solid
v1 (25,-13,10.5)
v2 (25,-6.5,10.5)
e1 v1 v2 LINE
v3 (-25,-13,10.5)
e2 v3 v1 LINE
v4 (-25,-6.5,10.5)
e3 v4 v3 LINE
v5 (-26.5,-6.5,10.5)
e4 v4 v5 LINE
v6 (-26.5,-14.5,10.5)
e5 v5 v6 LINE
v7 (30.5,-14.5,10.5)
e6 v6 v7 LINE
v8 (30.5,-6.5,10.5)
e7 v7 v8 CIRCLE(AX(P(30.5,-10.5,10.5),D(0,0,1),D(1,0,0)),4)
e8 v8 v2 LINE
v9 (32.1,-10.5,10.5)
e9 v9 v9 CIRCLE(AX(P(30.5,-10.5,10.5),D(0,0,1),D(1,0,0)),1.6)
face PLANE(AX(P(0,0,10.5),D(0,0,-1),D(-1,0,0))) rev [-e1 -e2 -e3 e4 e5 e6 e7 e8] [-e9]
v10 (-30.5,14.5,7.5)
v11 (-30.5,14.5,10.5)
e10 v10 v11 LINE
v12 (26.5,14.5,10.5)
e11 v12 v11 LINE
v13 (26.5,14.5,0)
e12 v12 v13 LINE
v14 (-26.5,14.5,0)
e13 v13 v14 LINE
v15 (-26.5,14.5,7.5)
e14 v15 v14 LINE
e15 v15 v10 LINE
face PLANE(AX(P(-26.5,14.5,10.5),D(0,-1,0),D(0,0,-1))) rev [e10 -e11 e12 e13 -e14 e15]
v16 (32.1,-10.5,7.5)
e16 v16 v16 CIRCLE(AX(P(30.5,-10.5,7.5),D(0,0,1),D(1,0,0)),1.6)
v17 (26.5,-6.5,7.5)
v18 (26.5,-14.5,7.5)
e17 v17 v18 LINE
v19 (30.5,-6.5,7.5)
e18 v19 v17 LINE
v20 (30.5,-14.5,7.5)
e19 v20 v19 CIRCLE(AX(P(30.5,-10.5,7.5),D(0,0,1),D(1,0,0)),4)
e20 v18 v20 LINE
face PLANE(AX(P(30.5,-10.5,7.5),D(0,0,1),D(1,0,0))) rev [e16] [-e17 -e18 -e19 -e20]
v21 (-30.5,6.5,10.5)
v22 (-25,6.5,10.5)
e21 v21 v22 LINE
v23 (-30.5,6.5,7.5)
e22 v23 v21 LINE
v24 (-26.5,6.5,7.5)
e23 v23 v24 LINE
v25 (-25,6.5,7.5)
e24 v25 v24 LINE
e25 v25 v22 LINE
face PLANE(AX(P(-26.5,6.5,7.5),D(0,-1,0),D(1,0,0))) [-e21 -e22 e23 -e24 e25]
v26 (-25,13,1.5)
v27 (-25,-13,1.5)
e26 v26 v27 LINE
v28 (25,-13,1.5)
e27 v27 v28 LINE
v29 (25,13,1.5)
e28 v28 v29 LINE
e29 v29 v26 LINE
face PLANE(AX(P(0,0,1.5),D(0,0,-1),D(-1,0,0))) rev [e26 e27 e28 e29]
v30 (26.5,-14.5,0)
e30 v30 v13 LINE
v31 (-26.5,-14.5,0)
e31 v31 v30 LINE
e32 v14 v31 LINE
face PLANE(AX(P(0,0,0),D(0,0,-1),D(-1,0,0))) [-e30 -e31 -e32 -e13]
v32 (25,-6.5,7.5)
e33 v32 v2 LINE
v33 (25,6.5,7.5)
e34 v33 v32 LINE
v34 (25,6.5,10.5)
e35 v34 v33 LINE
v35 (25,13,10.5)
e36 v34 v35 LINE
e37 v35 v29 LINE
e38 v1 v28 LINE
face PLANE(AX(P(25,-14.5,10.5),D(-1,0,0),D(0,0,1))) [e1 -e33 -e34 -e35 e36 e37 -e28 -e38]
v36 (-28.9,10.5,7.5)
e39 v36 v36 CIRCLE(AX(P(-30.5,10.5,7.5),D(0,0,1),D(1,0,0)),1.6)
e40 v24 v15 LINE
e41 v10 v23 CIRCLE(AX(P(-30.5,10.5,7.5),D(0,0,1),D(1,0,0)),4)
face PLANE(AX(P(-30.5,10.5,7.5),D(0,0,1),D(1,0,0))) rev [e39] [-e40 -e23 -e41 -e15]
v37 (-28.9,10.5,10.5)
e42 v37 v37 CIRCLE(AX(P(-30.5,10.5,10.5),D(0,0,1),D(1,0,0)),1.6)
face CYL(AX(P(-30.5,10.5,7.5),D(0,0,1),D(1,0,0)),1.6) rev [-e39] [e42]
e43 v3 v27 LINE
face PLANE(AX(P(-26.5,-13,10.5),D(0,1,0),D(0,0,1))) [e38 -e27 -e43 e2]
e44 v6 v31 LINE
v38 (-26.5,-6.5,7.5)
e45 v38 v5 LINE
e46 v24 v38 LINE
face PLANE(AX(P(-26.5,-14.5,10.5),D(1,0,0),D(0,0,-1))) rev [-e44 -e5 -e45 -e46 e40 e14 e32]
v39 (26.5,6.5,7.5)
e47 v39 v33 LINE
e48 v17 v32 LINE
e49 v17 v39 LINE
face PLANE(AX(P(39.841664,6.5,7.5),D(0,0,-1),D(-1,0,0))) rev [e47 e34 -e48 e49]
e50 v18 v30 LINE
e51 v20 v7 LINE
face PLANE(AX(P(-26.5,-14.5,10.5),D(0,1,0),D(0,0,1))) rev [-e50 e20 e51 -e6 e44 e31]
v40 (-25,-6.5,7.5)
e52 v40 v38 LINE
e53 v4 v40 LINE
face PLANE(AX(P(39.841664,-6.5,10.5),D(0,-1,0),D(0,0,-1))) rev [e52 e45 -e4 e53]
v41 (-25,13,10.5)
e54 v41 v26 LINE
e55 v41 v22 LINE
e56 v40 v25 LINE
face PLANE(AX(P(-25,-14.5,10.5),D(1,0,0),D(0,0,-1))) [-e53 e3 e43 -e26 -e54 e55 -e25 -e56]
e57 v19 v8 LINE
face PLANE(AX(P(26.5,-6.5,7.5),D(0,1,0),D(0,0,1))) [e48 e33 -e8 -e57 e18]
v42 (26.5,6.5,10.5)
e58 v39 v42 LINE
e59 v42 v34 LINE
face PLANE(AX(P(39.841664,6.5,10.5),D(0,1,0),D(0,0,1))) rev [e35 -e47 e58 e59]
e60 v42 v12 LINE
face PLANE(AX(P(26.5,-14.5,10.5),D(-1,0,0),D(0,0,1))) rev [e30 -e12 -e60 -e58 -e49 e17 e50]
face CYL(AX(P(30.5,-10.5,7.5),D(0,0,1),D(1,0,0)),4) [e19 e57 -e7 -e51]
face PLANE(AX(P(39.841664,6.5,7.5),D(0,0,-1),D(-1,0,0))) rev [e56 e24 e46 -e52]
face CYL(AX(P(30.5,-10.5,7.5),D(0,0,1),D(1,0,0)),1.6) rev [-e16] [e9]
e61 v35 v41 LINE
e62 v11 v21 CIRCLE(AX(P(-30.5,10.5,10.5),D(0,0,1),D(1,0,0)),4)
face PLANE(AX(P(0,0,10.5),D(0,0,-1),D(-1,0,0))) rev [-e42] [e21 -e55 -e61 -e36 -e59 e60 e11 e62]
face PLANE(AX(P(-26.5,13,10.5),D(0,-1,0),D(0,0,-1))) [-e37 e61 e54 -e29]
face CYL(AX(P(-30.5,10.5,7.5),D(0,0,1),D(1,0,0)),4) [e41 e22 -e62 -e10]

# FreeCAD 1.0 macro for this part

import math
import FreeCAD as App
import Part
import Sketcher


def faces_at(feature, points):
    """Names of the faces that lie closest to the given points."""
    faces = feature.Shape.Faces
    near = lambda p: min(range(len(faces)), key=lambda i: faces[i].distToShape(Part.Vertex(*p))[0])
    return sorted({f"Face{near(p) + 1}" for p in points})


def add_polygon(sketch, points):
    """Adds a closed chain of lines whose ends are joined by coincident constraints."""
    first, n = sketch.GeometryCount, len(points)
    for a, b in zip(points, points[1:] + points[:1]):
        sketch.addGeometry(Part.LineSegment(App.Vector(*a, 0), App.Vector(*b, 0)), False)
    for i in range(n):
        sketch.addConstraint(Sketcher.Constraint("Coincident", first + i, 2, first + (i + 1) % n, 1))

doc = App.newDocument("Part")
body = doc.addObject("PartDesign::Body", "Body")

# Sketch on XY plane
sketch1 = body.newObject("Sketcher::SketchObject", "Sketch")
sketch1.AttachmentSupport = (doc.getObject("XY_Plane"), [""])
sketch1.MapMode = "FlatFace"
add_polygon(sketch1, [(-26, 14), (-26, -14), (26, -14), (26, 14)])  # lines 0-3
sketch1.addConstraint([
    Sketcher.Constraint("Vertical", 0),
    Sketcher.Constraint("Horizontal", 1),
    Sketcher.Constraint("Vertical", 2),
    Sketcher.Constraint("Horizontal", 3),
    Sketcher.Constraint("Symmetric", 0, 2, 2, 2, -1, 1),
    Sketcher.Constraint("DistanceX", 1, 1, 1, 2, 53.0),
    Sketcher.Constraint("DistanceY", 0, 2, 0, 1, 29.0),
])
pad1 = body.newObject("PartDesign::Pad", "Pad")
pad1.Profile = sketch1
pad1.Length = 10.5
doc.recompute()

thickness = body.newObject("PartDesign::Thickness", "Thickness")
thickness.Base = (pad1, faces_at(pad1, [(0, 0, 10.5)]))
thickness.Value = 1.5
thickness.Reversed = True
thickness.Join = "Intersection"

# Sketch on XY plane
sketch2 = body.newObject("Sketcher::SketchObject", "Sketch001")
sketch2.AttachmentSupport = (doc.getObject("XY_Plane"), [""])
sketch2.MapMode = "FlatFace"
sketch2.AttachmentOffset = App.Placement(App.Vector(0, 0, 10.5), App.Rotation())
sketch2.addGeometry([
    Part.LineSegment(App.Vector(-30.5, 6.5, 0), App.Vector(-26.5, 6.5, 0)),  # 0
    Part.LineSegment(App.Vector(-26.5, 6.5, 0), App.Vector(-26.5, 14.5, 0)),  # 1
    Part.LineSegment(App.Vector(-26.5, 14.5, 0), App.Vector(-30.5, 14.5, 0)),  # 2
    Part.ArcOfCircle(Part.Circle(App.Vector(-30.5, 10.5, 0), App.Vector(0, 0, 1), 4), math.radians(90), math.radians(270)),  # 3
    Part.Circle(App.Vector(-30.5, 10.5, 0), App.Vector(0, 0, 1), 1.6),  # 4
    Part.LineSegment(App.Vector(30.5, -6.5, 0), App.Vector(26.5, -6.5, 0)),  # 5
    Part.LineSegment(App.Vector(26.5, -6.5, 0), App.Vector(26.5, -14.5, 0)),  # 6
    Part.LineSegment(App.Vector(26.5, -14.5, 0), App.Vector(30.5, -14.5, 0)),  # 7
    Part.ArcOfCircle(Part.Circle(App.Vector(30.5, -10.5, 0), App.Vector(0, 0, 1), 4), math.radians(-90), math.radians(90)),  # 8
    Part.Circle(App.Vector(30.5, -10.5, 0), App.Vector(0, 0, 1), 1.6),  # 9
], False)
sketch2.addConstraint([
    Sketcher.Constraint("Coincident", 0, 2, 1, 1),
    Sketcher.Constraint("Coincident", 1, 2, 2, 1),
    Sketcher.Constraint("Tangent", 2, 2, 3, 1),
    Sketcher.Constraint("Tangent", 3, 2, 0, 1),
    Sketcher.Constraint("Coincident", 5, 2, 6, 1),
    Sketcher.Constraint("Coincident", 6, 2, 7, 1),
    Sketcher.Constraint("Tangent", 7, 2, 8, 1),
    Sketcher.Constraint("Tangent", 8, 2, 5, 1),
    Sketcher.Constraint("Horizontal", 0),
    Sketcher.Constraint("Vertical", 1),
    Sketcher.Constraint("Horizontal", 2),
    Sketcher.Constraint("Horizontal", 5),
    Sketcher.Constraint("Vertical", 6),
    Sketcher.Constraint("Horizontal", 7),
    Sketcher.Constraint("Coincident", 4, 3, 3, 3),
    Sketcher.Constraint("Coincident", 9, 3, 8, 3),
    Sketcher.Constraint("Equal", 3, 8),
    Sketcher.Constraint("Equal", 4, 9),
    Sketcher.Constraint("Symmetric", 3, 3, 8, 3, -1, 1),
    Sketcher.Constraint("Equal", 2, 5),
    Sketcher.Constraint("Radius", 3, 4.0),
    Sketcher.Constraint("Diameter", 4, 3.2),
    Sketcher.Constraint("DistanceX", 0, 1, 0, 2, 4.0),
    Sketcher.Constraint("DistanceX", 3, 3, 8, 3, 61.0),
    Sketcher.Constraint("DistanceY", 8, 3, 3, 3, 21.0),
])
pad2 = body.newObject("PartDesign::Pad", "Pad001")
pad2.Profile = sketch2
pad2.Length = 3
pad2.Reversed = True

# Sketch on YZ plane
sketch3 = body.newObject("Sketcher::SketchObject", "Sketch002")
sketch3.AttachmentSupport = (doc.getObject("YZ_Plane"), [""])
sketch3.MapMode = "FlatFace"
sketch3.AttachmentOffset = App.Placement(App.Vector(0, 0, -26.5), App.Rotation())
add_polygon(sketch3, [(6.5, 7.5), (-6.5, 7.5), (-6.5, 10.5), (6.5, 10.5)])  # lines 0-3
sketch3.addConstraint([
    Sketcher.Constraint("Horizontal", 0),
    Sketcher.Constraint("Vertical", 1),
    Sketcher.Constraint("Horizontal", 2),
    Sketcher.Constraint("Vertical", 3),
    Sketcher.Constraint("DistanceX", 0, 2, 0, 1, 13.0),
    Sketcher.Constraint("DistanceY", 1, 1, 1, 2, 3.0),
    Sketcher.Constraint("DistanceX", 0, 2, -1, 1, 6.5),
    Sketcher.Constraint("DistanceY", -1, 1, 0, 2, 7.5),
])
pocket1 = body.newObject("PartDesign::Pocket", "Pocket")
pocket1.Profile = sketch3
pocket1.Length = 53
pocket1.Reversed = True

doc.recompute()
